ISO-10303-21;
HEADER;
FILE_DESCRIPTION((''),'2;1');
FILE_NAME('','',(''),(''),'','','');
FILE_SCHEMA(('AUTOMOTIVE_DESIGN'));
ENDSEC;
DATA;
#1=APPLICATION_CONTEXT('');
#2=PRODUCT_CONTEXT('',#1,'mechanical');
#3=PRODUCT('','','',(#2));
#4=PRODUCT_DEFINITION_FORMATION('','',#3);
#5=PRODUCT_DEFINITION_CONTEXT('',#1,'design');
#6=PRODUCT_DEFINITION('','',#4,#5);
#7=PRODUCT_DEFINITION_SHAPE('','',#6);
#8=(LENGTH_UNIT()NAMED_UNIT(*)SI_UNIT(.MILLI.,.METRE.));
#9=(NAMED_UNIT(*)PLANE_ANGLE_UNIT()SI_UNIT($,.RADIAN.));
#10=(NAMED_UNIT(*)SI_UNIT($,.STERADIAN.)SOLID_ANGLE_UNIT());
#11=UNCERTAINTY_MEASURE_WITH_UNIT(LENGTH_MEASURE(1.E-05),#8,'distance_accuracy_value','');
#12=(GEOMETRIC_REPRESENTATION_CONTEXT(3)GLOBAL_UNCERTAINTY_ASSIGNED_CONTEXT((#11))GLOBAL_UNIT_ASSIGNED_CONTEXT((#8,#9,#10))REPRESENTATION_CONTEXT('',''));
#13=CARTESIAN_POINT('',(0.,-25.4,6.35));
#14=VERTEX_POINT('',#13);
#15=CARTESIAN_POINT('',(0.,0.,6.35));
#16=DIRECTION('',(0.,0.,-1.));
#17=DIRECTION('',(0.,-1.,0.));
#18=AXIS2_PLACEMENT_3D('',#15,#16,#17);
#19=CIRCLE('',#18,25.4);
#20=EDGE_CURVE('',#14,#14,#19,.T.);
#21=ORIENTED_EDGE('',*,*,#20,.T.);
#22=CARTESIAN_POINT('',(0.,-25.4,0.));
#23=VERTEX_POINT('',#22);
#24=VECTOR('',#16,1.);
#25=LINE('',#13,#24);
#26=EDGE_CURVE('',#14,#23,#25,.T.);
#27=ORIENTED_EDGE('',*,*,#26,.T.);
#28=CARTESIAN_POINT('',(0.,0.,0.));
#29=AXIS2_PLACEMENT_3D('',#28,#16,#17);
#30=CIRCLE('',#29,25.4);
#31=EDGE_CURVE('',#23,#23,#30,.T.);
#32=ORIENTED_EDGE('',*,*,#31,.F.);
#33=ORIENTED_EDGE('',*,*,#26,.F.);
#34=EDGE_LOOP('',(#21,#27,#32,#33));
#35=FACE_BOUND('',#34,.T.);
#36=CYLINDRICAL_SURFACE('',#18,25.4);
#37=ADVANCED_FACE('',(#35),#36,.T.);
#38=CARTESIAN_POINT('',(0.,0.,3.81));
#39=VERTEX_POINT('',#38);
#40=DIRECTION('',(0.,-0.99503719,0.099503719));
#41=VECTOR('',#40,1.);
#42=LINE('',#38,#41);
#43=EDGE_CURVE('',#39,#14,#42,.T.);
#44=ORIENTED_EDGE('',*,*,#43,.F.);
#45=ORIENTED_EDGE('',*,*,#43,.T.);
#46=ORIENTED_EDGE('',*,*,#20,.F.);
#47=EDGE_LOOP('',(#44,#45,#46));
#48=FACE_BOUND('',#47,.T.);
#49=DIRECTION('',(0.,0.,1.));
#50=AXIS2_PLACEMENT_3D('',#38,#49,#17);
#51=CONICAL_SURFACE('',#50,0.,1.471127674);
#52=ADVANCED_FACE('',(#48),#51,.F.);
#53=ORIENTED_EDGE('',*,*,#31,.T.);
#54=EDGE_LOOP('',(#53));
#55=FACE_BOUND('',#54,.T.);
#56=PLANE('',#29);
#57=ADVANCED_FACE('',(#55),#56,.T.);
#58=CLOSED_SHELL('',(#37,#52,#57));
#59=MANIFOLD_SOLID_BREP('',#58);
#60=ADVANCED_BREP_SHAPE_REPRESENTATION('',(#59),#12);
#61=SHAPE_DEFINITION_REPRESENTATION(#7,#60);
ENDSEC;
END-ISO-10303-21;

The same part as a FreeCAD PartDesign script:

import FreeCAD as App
import Part
import Sketcher

V = App.Vector
Q = App.Units.Quantity

doc = App.newDocument("Part")
body = doc.addObject("PartDesign::Body", "Body")

# Sketch on YZ plane
sketch1 = doc.addObject("Sketcher::SketchObject", "Sketch")
body.addObject(sketch1)
sketch1.AttachmentSupport = (doc.YZ_Plane, [""])
sketch1.MapMode = "FlatFace"
sketch1.addGeometry(Part.LineSegment(V(-25.4, 0, 0), V(0, 0, 0)), False)
sketch1.addGeometry(Part.LineSegment(V(0, 0, 0), V(0, 3.8, 0)), False)
sketch1.addGeometry(Part.LineSegment(V(0, 3.8, 0), V(-25.4, 6.3, 0)), False)
sketch1.addGeometry(Part.LineSegment(V(-25.4, 6.3, 0), V(-25.4, 0, 0)), False)
sketch1.addConstraint(Sketcher.Constraint("Coincident", 0, 2, 1, 1))
sketch1.addConstraint(Sketcher.Constraint("Coincident", 1, 2, 2, 1))
sketch1.addConstraint(Sketcher.Constraint("Coincident", 2, 2, 3, 1))
sketch1.addConstraint(Sketcher.Constraint("Coincident", 3, 2, 0, 1))
sketch1.addConstraint(Sketcher.Constraint("Horizontal", 0))
sketch1.addConstraint(Sketcher.Constraint("Vertical", 1))
sketch1.addConstraint(Sketcher.Constraint("Vertical", 3))
sketch1.addConstraint(Sketcher.Constraint("Coincident", 0, 2, -1, 1))
sketch1.addConstraint(Sketcher.Constraint("DistanceX", 0, 1, 0, 2, Q("1 in")))
sketch1.addConstraint(Sketcher.Constraint("DistanceY", 1, 1, 1, 2, Q("0.15 in")))
sketch1.addConstraint(Sketcher.Constraint("DistanceY", 3, 2, 3, 1, Q("0.25 in")))
revolution = doc.addObject("PartDesign::Revolution", "Revolution")
body.addObject(revolution)
revolution.Profile = sketch1
revolution.ReferenceAxis = (sketch1, ["V_Axis"])
revolution.Angle = 360

doc.recompute()
